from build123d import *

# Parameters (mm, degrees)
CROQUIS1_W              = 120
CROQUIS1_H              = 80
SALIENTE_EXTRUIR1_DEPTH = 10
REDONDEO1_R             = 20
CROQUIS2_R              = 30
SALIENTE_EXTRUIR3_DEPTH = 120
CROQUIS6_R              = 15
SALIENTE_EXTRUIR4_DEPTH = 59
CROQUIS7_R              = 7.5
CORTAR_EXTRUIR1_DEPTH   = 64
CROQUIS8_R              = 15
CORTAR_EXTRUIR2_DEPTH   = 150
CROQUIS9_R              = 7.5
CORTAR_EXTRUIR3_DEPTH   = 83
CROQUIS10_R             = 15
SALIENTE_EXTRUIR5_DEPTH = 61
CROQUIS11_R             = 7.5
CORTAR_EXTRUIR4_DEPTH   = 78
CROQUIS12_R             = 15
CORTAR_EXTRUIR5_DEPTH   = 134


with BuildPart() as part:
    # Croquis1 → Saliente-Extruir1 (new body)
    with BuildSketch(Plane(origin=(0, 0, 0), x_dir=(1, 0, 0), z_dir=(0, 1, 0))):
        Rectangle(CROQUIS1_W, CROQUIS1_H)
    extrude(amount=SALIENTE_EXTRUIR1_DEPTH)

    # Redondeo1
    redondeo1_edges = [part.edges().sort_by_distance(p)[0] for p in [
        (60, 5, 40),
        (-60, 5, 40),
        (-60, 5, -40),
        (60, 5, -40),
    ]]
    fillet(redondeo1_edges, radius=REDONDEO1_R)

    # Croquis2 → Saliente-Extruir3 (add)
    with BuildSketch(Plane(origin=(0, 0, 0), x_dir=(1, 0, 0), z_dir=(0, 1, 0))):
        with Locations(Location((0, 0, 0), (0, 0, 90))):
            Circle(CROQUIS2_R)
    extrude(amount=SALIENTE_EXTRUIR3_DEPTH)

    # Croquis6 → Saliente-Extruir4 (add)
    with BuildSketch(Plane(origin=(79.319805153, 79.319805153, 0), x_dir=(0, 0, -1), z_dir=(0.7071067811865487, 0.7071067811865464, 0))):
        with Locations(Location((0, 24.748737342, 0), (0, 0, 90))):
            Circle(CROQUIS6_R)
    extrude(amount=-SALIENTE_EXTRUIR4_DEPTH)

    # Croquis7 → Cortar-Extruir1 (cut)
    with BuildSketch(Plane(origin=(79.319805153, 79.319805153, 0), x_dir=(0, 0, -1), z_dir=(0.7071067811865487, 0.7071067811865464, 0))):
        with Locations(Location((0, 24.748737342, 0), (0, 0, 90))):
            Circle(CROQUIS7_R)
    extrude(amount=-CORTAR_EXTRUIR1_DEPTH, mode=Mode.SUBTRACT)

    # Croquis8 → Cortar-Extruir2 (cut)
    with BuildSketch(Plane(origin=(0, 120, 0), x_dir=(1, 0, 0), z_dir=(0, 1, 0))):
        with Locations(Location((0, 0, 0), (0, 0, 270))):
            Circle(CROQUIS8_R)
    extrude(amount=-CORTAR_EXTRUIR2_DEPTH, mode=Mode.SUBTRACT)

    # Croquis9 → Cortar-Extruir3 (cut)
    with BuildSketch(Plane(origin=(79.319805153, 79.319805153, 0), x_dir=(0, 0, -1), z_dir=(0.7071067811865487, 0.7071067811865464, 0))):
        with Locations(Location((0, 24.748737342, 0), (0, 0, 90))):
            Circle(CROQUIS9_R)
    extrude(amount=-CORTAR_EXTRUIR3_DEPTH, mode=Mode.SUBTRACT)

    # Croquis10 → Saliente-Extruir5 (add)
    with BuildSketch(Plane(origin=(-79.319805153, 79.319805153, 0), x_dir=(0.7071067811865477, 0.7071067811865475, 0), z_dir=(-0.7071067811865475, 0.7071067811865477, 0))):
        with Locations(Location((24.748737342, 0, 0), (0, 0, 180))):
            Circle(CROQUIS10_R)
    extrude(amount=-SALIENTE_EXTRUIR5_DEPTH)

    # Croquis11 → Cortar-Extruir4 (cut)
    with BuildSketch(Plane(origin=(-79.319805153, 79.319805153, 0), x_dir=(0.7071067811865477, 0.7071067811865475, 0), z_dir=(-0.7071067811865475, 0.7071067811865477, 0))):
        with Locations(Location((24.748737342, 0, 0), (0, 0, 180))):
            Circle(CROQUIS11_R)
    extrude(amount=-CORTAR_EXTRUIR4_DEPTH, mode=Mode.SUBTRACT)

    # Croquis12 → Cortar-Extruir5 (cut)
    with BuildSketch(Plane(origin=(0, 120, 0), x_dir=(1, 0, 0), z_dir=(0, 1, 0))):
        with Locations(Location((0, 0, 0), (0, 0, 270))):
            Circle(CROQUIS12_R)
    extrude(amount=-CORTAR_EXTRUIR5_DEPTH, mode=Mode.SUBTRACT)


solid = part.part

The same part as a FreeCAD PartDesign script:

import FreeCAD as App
import Part
import Sketcher

V = App.Vector


def edges_at(feature, points):
    """Names of the edges that pass closest to the given points."""
    edges = feature.Shape.Edges
    near = lambda p: min(range(len(edges)), key=lambda i: edges[i].distToShape(Part.Vertex(*p))[0])
    return sorted({f"Edge{near(p) + 1}" for p in points})

doc = App.newDocument("Part")
body = doc.addObject("PartDesign::Body", "Body")

# Sketch on XZ plane
sketch1 = body.newObject("Sketcher::SketchObject", "Sketch")
sketch1.AttachmentSupport = (doc.getObject("XZ_Plane"), [""])
sketch1.MapMode = "FlatFace"
sketch1.addGeometry([
    Part.LineSegment(V(-60, -40, 0), V(-60, 40, 0)),
    Part.LineSegment(V(-60, 40, 0), V(60, 40, 0)),
    Part.LineSegment(V(60, 40, 0), V(60, -40, 0)),
    Part.LineSegment(V(60, -40, 0), V(-60, -40, 0)),
], False)
sketch1.addConstraint([
    Sketcher.Constraint("Coincident", 0, 2, 1, 1),
    Sketcher.Constraint("Coincident", 1, 2, 2, 1),
    Sketcher.Constraint("Coincident", 2, 2, 3, 1),
    Sketcher.Constraint("Coincident", 3, 2, 0, 1),
    Sketcher.Constraint("Vertical", 0),
    Sketcher.Constraint("Horizontal", 1),
    Sketcher.Constraint("Vertical", 2),
    Sketcher.Constraint("Horizontal", 3),
    Sketcher.Constraint("Symmetric", 0, 2, 2, 2, -1, 1),
    Sketcher.Constraint("DistanceX", 1, 1, 1, 2, 120.0),
    Sketcher.Constraint("DistanceY", 0, 1, 0, 2, 80.0),
])
pad1 = body.newObject("PartDesign::Pad", "Pad")
pad1.Profile = sketch1
pad1.Length = 10
pad1.Reversed = True
doc.recompute()

fillet = body.newObject("PartDesign::Fillet", "Fillet")
fillet.Base = (pad1, edges_at(pad1, [
    (60, 5, 40),
    (-60, 5, 40),
    (-60, 5, -40),
    (60, 5, -40),
]))
fillet.Radius = 20

# Sketch on XZ plane
sketch2 = body.newObject("Sketcher::SketchObject", "Sketch001")
sketch2.AttachmentSupport = (doc.getObject("XZ_Plane"), [""])
sketch2.MapMode = "FlatFace"
sketch2.addGeometry(Part.Circle(V(0, 0, 0), V(0, 0, 1), 30), False)
sketch2.addConstraint([
    Sketcher.Constraint("Coincident", 0, 3, -1, 1),
    Sketcher.Constraint("Diameter", 0, 60.0),
])
pad2 = body.newObject("PartDesign::Pad", "Pad001")
pad2.Profile = sketch2
pad2.Length = 120
pad2.Reversed = True

# Sketch on an angled plane
sketch3 = body.newObject("Sketcher::SketchObject", "Sketch002")
sketch3.Placement = App.Placement(V(79.319805, 79.319805, 0), App.Rotation(V(0, 0, -1), V(-0.707106781, 0.707106781, 0), V(0.707106781, 0.707106781, 0), "ZXY"))
sketch3.addGeometry(Part.Circle(V(0, 24.748737, 0), V(0, 0, 1), 15), False)
sketch3.addConstraint([
    Sketcher.Constraint("PointOnObject", 0, 3, -2),
    Sketcher.Constraint("Diameter", 0, 30.0),
    Sketcher.Constraint("DistanceY", -1, 1, 0, 3, 24.748737),
])
pad3 = body.newObject("PartDesign::Pad", "Pad002")
pad3.Profile = sketch3
pad3.Length = 59
pad3.Reversed = True

# Sketch on an angled plane
sketch4 = body.newObject("Sketcher::SketchObject", "Sketch003")
sketch4.Placement = App.Placement(V(79.319805, 79.319805, 0), App.Rotation(V(0, 0, -1), V(-0.707106781, 0.707106781, 0), V(0.707106781, 0.707106781, 0), "ZXY"))
sketch4.addGeometry(Part.Circle(V(0, 24.748737, 0), V(0, 0, 1), 7.5), False)
sketch4.addConstraint([
    Sketcher.Constraint("PointOnObject", 0, 3, -2),
    Sketcher.Constraint("Diameter", 0, 15.0),
    Sketcher.Constraint("DistanceY", -1, 1, 0, 3, 24.748737),
])
pocket1 = body.newObject("PartDesign::Pocket", "Pocket")
pocket1.Profile = sketch4
pocket1.Length = 64

# Sketch on XZ plane
sketch5 = body.newObject("Sketcher::SketchObject", "Sketch004")
sketch5.AttachmentSupport = (doc.getObject("XZ_Plane"), [""])
sketch5.MapMode = "FlatFace"
sketch5.AttachmentOffset = App.Placement(V(0, 0, -120), App.Rotation())
sketch5.addGeometry(Part.Circle(V(0, 0, 0), V(0, 0, 1), 15), False)
sketch5.addConstraint([
    Sketcher.Constraint("Coincident", 0, 3, -1, 1),
    Sketcher.Constraint("Diameter", 0, 30.0),
])
pocket2 = body.newObject("PartDesign::Pocket", "Pocket001")
pocket2.Profile = sketch5
pocket2.Length = 150
pocket2.Reversed = True

# Sketch on an angled plane
sketch6 = body.newObject("Sketcher::SketchObject", "Sketch005")
sketch6.Placement = App.Placement(V(79.319805, 79.319805, 0), App.Rotation(V(0, 0, -1), V(-0.707106781, 0.707106781, 0), V(0.707106781, 0.707106781, 0), "ZXY"))
sketch6.addGeometry(Part.Circle(V(0, 24.748737, 0), V(0, 0, 1), 7.5), False)
sketch6.addConstraint([
    Sketcher.Constraint("PointOnObject", 0, 3, -2),
    Sketcher.Constraint("Diameter", 0, 15.0),
    Sketcher.Constraint("DistanceY", -1, 1, 0, 3, 24.748737),
])
pocket3 = body.newObject("PartDesign::Pocket", "Pocket002")
pocket3.Profile = sketch6
pocket3.Length = 83

# Sketch on an angled plane
sketch7 = body.newObject("Sketcher::SketchObject", "Sketch006")
sketch7.Placement = App.Placement(V(-79.319805, 79.319805, 0), App.Rotation(V(0.707106781, 0.707106781, 0), V(0, 0, -0.999999999), V(-0.707106781, 0.707106781, 0), "ZXY"))
sketch7.addGeometry(Part.Circle(V(24.748737, 0, 0), V(0, 0, 1), 15), False)
sketch7.addConstraint([
    Sketcher.Constraint("PointOnObject", 0, 3, -1),
    Sketcher.Constraint("Diameter", 0, 30.0),
    Sketcher.Constraint("DistanceX", -1, 1, 0, 3, 24.748737),
])
pad4 = body.newObject("PartDesign::Pad", "Pad003")
pad4.Profile = sketch7
pad4.Length = 61
pad4.Reversed = True

# Sketch on an angled plane
sketch8 = body.newObject("Sketcher::SketchObject", "Sketch007")
sketch8.Placement = App.Placement(V(-79.319805, 79.319805, 0), App.Rotation(V(0.707106781, 0.707106781, 0), V(0, 0, -0.999999999), V(-0.707106781, 0.707106781, 0), "ZXY"))
sketch8.addGeometry(Part.Circle(V(24.748737, 0, 0), V(0, 0, 1), 7.5), False)
sketch8.addConstraint([
    Sketcher.Constraint("PointOnObject", 0, 3, -1),
    Sketcher.Constraint("Diameter", 0, 15.0),
    Sketcher.Constraint("DistanceX", -1, 1, 0, 3, 24.748737),
])
pocket4 = body.newObject("PartDesign::Pocket", "Pocket003")
pocket4.Profile = sketch8
pocket4.Length = 78

# Sketch on XZ plane
sketch9 = body.newObject("Sketcher::SketchObject", "Sketch008")
sketch9.AttachmentSupport = (doc.getObject("XZ_Plane"), [""])
sketch9.MapMode = "FlatFace"
sketch9.AttachmentOffset = App.Placement(V(0, 0, -120), App.Rotation())
sketch9.addGeometry(Part.Circle(V(0, 0, 0), V(0, 0, 1), 15), False)
sketch9.addConstraint([
    Sketcher.Constraint("Coincident", 0, 3, -1, 1),
    Sketcher.Constraint("Diameter", 0, 30.0),
])
pocket5 = body.newObject("PartDesign::Pocket", "Pocket004")
pocket5.Profile = sketch9
pocket5.Length = 134
pocket5.Reversed = True

doc.recompute()
